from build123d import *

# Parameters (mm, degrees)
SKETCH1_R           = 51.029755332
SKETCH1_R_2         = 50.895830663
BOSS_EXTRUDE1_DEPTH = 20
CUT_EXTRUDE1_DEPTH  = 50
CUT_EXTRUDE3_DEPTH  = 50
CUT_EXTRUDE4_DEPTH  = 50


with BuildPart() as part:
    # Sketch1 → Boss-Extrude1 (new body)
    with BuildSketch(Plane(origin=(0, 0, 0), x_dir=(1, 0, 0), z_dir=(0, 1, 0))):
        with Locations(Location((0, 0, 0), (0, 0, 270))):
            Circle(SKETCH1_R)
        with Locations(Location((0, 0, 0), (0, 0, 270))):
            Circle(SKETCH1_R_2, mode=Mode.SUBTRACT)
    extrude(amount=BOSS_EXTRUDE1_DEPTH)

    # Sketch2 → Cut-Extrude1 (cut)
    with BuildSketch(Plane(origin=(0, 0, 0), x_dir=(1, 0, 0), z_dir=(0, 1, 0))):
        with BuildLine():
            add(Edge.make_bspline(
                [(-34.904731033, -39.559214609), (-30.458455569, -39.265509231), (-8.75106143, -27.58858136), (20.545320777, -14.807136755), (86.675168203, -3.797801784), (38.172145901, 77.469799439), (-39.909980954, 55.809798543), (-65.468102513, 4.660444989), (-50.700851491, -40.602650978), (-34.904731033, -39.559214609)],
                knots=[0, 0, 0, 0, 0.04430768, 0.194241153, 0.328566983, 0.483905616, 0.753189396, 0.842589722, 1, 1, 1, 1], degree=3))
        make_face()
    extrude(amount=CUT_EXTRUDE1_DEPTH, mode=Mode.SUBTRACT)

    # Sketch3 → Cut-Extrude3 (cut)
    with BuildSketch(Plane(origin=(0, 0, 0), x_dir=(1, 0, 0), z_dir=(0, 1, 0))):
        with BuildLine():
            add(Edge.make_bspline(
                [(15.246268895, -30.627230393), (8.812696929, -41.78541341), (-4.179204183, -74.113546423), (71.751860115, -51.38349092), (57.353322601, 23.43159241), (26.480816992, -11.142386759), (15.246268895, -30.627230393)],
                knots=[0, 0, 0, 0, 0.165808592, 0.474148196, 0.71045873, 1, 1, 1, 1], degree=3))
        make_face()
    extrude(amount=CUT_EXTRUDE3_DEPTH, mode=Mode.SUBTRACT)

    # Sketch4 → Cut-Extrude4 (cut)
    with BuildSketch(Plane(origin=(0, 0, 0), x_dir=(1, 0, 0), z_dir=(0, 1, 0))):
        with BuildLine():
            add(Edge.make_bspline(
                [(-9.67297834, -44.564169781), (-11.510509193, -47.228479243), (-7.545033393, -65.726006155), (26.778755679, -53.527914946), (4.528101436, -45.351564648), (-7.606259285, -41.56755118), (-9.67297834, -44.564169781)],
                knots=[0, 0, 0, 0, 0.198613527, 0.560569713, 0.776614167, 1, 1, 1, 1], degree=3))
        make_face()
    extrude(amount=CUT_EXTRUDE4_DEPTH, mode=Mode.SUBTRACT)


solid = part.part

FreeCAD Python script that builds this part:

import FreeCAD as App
import Part
import Sketcher
Q = App.Units.Quantity

doc = App.newDocument("Part")
body = doc.addObject("PartDesign::Body", "Body")

sketch1 = doc.addObject("Sketcher::SketchObject", "Sketch")
body.addObject(sketch1)
sketch1.AttachmentSupport = (doc.XZ_Plane, [""])
sketch1.MapMode = "FlatFace"
sketch1.addGeometry([
    Part.Circle(App.Vector(0, 0, 0), App.Vector(0, 0, 1), 51.029755),
    Part.Circle(App.Vector(0, 0, 0), App.Vector(0, 0, 1), 50.895831),
], False)
sketch1.addConstraint([
    Sketcher.Constraint("Coincident", 0, 3, -1, 1),
    Sketcher.Constraint("Coincident", 1, 3, -1, 1),
    Sketcher.Constraint("Diameter", 0, Q("102.059511 mm")),
    Sketcher.Constraint("Diameter", 1, Q("101.791661 mm")),
])
pad1 = doc.addObject("PartDesign::Pad", "Pad")
body.addObject(pad1)
pad1.Profile = sketch1
pad1.Length = 20
pad1.Reversed = True

sketch2 = doc.addObject("Sketcher::SketchObject", "Sketch001")
body.addObject(sketch2)
sketch2.AttachmentSupport = (doc.XZ_Plane, [""])
sketch2.MapMode = "FlatFace"
sketch2.addGeometry(Part.BSplineCurve([App.Vector(-34.904731, 39.559215, 0), App.Vector(-30.458456, 39.265509, 0), App.Vector(-8.751061, 27.588581, 0), App.Vector(20.545321, 14.807137, 0), App.Vector(86.675168, 3.797802, 0), App.Vector(38.172146, -77.469799, 0), App.Vector(-39.909981, -55.809799, 0), App.Vector(-65.468103, -4.660445, 0), App.Vector(-50.700851, 40.602651, 0), App.Vector(-34.904731, 39.559215, 0)], [4, 1, 1, 1, 1, 1, 1, 4], [0, 0.04430768, 0.194241153, 0.328566983, 0.483905616, 0.753189396, 0.842589722, 1], False, 3, [1, 1, 1, 1, 1, 1, 1, 1, 1, 1], False), False)
sketch2.addConstraint(Sketcher.Constraint("Block", 0))
pocket1 = doc.addObject("PartDesign::Pocket", "Pocket")
body.addObject(pocket1)
pocket1.Profile = sketch2
pocket1.Length = 50

sketch3 = doc.addObject("Sketcher::SketchObject", "Sketch002")
body.addObject(sketch3)
sketch3.AttachmentSupport = (doc.XZ_Plane, [""])
sketch3.MapMode = "FlatFace"
sketch3.addGeometry(Part.BSplineCurve([App.Vector(15.246269, 30.62723, 0), App.Vector(8.812697, 41.785413, 0), App.Vector(-4.179204, 74.113546, 0), App.Vector(71.75186, 51.383491, 0), App.Vector(57.353323, -23.431592, 0), App.Vector(26.480817, 11.142387, 0), App.Vector(15.246269, 30.62723, 0)], [4, 1, 1, 1, 4], [0, 0.165808592, 0.474148196, 0.71045873, 1], False, 3, [1, 1, 1, 1, 1, 1, 1], False), False)
sketch3.addConstraint(Sketcher.Constraint("Block", 0))
pocket2 = doc.addObject("PartDesign::Pocket", "Pocket001")
body.addObject(pocket2)
pocket2.Profile = sketch3
pocket2.Length = 50

sketch4 = doc.addObject("Sketcher::SketchObject", "Sketch003")
body.addObject(sketch4)
sketch4.AttachmentSupport = (doc.XZ_Plane, [""])
sketch4.MapMode = "FlatFace"
sketch4.addGeometry(Part.BSplineCurve([App.Vector(-9.672978, 44.56417, 0), App.Vector(-11.510509, 47.228479, 0), App.Vector(-7.545033, 65.726006, 0), App.Vector(26.778756, 53.527915, 0), App.Vector(4.528101, 45.351565, 0), App.Vector(-7.606259, 41.567551, 0), App.Vector(-9.672978, 44.56417, 0)], [4, 1, 1, 1, 4], [0, 0.198613527, 0.560569713, 0.776614167, 1], False, 3, [1, 1, 1, 1, 1, 1, 1], False), False)
sketch4.addConstraint(Sketcher.Constraint("Block", 0))
pocket3 = doc.addObject("PartDesign::Pocket", "Pocket002")
body.addObject(pocket3)
pocket3.Profile = sketch4
pocket3.Length = 50

doc.recompute()
